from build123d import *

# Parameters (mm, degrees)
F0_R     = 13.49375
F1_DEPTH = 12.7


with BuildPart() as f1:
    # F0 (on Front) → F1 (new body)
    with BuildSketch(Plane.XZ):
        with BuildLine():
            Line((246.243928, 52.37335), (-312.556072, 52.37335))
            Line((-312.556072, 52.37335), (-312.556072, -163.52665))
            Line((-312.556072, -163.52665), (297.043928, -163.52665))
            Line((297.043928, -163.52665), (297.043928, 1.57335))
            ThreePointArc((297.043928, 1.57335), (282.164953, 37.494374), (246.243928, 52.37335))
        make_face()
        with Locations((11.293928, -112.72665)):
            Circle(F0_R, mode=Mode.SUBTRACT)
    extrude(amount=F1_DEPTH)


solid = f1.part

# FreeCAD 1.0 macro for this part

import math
import FreeCAD as App
import Part
import Sketcher

V = App.Vector
Q = App.Units.Quantity

doc = App.newDocument("Part")
body = doc.addObject("PartDesign::Body", "Body")

sketch1 = doc.addObject("Sketcher::SketchObject", "Sketch")
body.addObject(sketch1)
sketch1.AttachmentSupport = (doc.XZ_Plane, [""])
sketch1.MapMode = "FlatFace"
sketch1.addGeometry([
    Part.LineSegment(V(246, 52, 0), V(-313, 52, 0)),
    Part.LineSegment(V(-313, 52, 0), V(-313, -164, 0)),
    Part.LineSegment(V(-313, -164, 0), V(297, -164, 0)),
    Part.LineSegment(V(297, -164, 0), V(297, 2, 0)),
    Part.ArcOfCircle(Part.Circle(V(246, 2, 0), V(0, 0, 1), 51), math.radians(0), math.radians(90)),
    Part.Circle(V(11, -113, 0), V(0, 0, 1), 13),
], False)
sketch1.addConstraint([
    Sketcher.Constraint("Coincident", 0, 2, 1, 1),
    Sketcher.Constraint("Coincident", 1, 2, 2, 1),
    Sketcher.Constraint("Coincident", 2, 2, 3, 1),
    Sketcher.Constraint("Tangent", 3, 2, 4, 1),
    Sketcher.Constraint("Tangent", 4, 2, 0, 1),
    Sketcher.Constraint("Horizontal", 0),
    Sketcher.Constraint("Vertical", 1),
    Sketcher.Constraint("Horizontal", 2),
    Sketcher.Constraint("Vertical", 3),
    Sketcher.Constraint("Radius", 4, Q("2 in")),
    Sketcher.Constraint("DistanceX", 0, 2, 0, 1, Q("22 in")),
    Sketcher.Constraint("Diameter", 5, Q("1.0625 in")),
    Sketcher.Constraint("DistanceY", 1, 2, 1, 1, Q("8.5 in")),
    Sketcher.Constraint("DistanceY", 1, 2, 5, 3, Q("2 in")),
    Sketcher.Constraint("DistanceX", 5, 3, 4, 3, Q("9.25 in")),
    Sketcher.Constraint("DistanceX", -1, 1, 4, 3, Q("246.243928 mm")),
    Sketcher.Constraint("DistanceY", -1, 1, 4, 3, Q("1.57335 mm")),
])
pad1 = doc.addObject("PartDesign::Pad", "Pad")
body.addObject(pad1)
pad1.Profile = sketch1
pad1.Length = Q("0.5 in")

doc.recompute()
